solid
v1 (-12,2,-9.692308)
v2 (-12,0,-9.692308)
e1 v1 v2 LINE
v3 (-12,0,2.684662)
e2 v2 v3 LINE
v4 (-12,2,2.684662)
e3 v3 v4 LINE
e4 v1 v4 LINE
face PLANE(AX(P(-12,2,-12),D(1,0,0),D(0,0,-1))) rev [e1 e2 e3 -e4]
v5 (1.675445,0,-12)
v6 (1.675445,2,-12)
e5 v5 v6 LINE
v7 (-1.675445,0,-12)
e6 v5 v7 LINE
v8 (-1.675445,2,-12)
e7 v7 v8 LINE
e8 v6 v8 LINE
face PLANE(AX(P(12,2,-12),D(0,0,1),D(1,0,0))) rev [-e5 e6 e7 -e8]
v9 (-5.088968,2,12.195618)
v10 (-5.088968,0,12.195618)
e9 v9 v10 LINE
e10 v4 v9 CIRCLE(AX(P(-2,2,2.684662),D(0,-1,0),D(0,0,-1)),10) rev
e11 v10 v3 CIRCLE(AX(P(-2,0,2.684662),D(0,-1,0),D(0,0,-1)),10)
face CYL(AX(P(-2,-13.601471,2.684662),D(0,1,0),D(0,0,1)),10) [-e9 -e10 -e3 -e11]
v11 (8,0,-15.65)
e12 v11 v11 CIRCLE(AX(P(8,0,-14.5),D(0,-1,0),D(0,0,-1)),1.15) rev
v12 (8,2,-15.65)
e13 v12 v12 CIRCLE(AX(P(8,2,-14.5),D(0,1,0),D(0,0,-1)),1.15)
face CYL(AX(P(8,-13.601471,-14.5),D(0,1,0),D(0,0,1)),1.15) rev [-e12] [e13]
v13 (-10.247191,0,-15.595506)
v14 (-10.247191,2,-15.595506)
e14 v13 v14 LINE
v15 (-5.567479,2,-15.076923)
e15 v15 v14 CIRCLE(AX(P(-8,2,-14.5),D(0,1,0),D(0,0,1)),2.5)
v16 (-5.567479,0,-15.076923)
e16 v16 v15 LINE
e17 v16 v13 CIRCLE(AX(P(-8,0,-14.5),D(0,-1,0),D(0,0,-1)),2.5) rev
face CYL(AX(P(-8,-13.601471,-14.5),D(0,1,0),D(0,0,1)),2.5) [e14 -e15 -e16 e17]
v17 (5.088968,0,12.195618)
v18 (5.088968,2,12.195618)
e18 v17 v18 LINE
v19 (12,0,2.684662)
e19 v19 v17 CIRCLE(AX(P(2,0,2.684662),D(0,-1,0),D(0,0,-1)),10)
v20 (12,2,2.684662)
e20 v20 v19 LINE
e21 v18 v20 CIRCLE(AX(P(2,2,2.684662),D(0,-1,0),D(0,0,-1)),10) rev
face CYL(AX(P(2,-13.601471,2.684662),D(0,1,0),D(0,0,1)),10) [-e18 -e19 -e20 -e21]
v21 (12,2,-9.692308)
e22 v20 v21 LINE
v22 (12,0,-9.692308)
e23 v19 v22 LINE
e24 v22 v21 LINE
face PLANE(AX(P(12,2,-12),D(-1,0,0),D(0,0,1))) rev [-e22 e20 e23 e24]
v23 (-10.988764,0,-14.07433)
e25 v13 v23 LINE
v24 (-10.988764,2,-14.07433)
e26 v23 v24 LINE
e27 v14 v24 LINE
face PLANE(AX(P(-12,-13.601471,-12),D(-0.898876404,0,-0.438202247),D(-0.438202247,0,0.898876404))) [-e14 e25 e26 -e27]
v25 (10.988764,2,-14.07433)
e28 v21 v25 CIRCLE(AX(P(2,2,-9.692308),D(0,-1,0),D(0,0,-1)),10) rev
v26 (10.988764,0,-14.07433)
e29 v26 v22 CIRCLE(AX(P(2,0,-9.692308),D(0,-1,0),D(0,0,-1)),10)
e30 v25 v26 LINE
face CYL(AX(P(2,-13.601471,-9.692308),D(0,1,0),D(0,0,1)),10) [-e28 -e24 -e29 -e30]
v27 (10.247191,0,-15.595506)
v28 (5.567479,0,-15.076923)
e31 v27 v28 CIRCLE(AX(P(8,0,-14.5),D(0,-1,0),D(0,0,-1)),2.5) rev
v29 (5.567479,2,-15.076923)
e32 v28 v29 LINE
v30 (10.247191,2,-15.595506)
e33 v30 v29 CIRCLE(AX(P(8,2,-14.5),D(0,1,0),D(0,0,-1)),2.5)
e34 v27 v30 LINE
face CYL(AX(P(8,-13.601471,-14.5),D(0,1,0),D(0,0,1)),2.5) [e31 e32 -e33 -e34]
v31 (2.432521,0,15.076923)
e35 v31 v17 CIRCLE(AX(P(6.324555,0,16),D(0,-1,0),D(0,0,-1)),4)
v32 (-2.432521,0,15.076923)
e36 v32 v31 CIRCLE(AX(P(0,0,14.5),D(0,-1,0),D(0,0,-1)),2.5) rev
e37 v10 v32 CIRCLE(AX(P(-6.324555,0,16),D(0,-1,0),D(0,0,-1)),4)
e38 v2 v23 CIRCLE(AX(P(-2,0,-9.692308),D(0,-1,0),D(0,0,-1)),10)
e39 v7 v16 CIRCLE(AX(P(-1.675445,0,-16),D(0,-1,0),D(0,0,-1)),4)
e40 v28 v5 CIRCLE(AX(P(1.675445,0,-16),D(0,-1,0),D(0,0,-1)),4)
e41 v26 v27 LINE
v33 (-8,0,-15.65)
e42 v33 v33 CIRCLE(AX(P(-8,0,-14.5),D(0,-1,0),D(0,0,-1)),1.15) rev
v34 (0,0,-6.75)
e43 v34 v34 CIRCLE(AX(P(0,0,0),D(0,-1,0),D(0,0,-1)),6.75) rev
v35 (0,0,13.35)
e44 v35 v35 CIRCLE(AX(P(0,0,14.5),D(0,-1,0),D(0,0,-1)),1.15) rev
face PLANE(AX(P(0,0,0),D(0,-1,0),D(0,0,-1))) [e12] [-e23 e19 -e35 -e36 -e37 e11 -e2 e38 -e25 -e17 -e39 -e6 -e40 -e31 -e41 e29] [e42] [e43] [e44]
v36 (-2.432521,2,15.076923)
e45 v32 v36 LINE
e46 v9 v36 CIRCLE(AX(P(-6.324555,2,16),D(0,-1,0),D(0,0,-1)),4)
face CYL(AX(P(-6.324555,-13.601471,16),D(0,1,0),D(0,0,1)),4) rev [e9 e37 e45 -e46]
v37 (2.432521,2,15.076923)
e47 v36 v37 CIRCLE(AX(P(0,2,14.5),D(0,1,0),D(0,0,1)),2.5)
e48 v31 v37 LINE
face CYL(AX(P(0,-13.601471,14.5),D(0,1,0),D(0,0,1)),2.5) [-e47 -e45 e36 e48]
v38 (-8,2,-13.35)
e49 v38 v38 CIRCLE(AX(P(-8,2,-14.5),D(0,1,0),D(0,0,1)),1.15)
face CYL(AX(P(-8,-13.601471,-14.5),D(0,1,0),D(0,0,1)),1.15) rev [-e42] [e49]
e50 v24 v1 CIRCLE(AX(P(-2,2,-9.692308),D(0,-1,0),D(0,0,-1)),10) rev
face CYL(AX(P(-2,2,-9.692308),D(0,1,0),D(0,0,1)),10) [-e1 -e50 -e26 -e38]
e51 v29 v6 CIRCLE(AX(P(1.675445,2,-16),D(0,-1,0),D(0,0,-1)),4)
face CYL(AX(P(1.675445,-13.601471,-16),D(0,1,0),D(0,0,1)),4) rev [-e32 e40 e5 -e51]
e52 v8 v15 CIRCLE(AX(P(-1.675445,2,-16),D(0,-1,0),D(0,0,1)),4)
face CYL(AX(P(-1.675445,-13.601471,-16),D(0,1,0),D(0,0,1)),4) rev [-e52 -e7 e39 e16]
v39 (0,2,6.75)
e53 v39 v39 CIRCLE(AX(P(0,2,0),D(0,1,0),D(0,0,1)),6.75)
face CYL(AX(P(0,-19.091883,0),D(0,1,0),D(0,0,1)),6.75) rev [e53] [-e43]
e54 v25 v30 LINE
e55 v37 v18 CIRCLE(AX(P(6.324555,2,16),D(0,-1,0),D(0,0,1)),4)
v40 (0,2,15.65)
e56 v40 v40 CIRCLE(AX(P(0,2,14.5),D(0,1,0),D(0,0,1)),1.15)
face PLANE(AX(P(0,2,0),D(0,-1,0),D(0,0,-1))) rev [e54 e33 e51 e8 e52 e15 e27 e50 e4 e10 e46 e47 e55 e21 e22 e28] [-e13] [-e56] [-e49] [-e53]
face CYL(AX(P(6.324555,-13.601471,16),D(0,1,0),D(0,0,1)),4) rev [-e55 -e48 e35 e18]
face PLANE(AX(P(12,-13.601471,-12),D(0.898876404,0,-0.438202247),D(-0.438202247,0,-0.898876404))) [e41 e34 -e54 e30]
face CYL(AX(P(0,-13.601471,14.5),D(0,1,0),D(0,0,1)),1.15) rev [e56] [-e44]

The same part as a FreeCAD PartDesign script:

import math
import FreeCAD as App
import Part
import Sketcher
from FreeCAD import Vector


def edges_at(feature, points):
    """Names of the edges that pass closest to the given points."""
    edges = feature.Shape.Edges
    near = lambda p: min(range(len(edges)), key=lambda i: edges[i].distToShape(Part.Vertex(*p))[0])
    return sorted({f"Edge{near(p) + 1}" for p in points})


def add_polygon(sketch, points):
    """Adds a closed chain of lines whose ends are joined by coincident constraints."""
    first, n = sketch.GeometryCount, len(points)
    for a, b in zip(points, points[1:] + points[:1]):
        sketch.addGeometry(Part.LineSegment(App.Vector(*a, 0), App.Vector(*b, 0)), False)
    for i in range(n):
        sketch.addConstraint(Sketcher.Constraint("Coincident", first + i, 2, first + (i + 1) % n, 1))

doc = App.newDocument("Part")
params = doc.addObject("Spreadsheet::Sheet", "Params")
for row, (alias, value) in enumerate([
    ("sketch1_width", "24 mm"),
    ("pad1_length", "2 mm"),
    ("sketch2_radius", "4 mm"),
    ("sketch2_diameter", "2.3 mm"),
    ("sketch2_radius2", "2.5 mm"),
    ("sketch2_length", "4 mm"),
    ("pad2_length", "2 mm"),
    ("fillet_radius", "10 mm"),
    ("sketch3_diameter", "13.5 mm"),
    ("pocket1_length", "2 mm"),
    ("fillet2_radius", "10 mm"),
], start=1):
    params.set(f"A{row}", alias)
    params.set(f"B{row}", "=" + value)
    params.setAlias(f"B{row}", alias)

body = doc.addObject("PartDesign::Body", "Body")

sketch1 = body.newObject("Sketcher::SketchObject", "Sketch")
sketch1.AttachmentSupport = (doc.getObject("XZ_Plane"), [""])
sketch1.MapMode = "FlatFace"
add_polygon(sketch1, [(-12, -12), (-12, 12), (12, 12), (12, -12)])
sketch1.addConstraint(Sketcher.Constraint("Vertical", 0))
sketch1.addConstraint(Sketcher.Constraint("Horizontal", 1))
sketch1.addConstraint(Sketcher.Constraint("Vertical", 2))
sketch1.addConstraint(Sketcher.Constraint("Horizontal", 3))
sketch1.addConstraint(Sketcher.Constraint("Symmetric", 0, 2, 2, 2, -1, 1))
sketch1.addConstraint(Sketcher.Constraint("Equal", 3, 0))
sketch1.addConstraint(Sketcher.Constraint("DistanceX", 1, 1, 1, 2, 24.0))
sketch1.setExpression("Constraints[10]", "Params.sketch1_width")
pad1 = body.newObject("PartDesign::Pad", "Pad")
pad1.Profile = sketch1
pad1.setExpression("Length", "Params.pad1_length")
pad1.Reversed = True

sketch2 = body.newObject("Sketcher::SketchObject", "Sketch001")
sketch2.AttachmentSupport = (doc.getObject("XZ_Plane"), [""])
sketch2.MapMode = "FlatFace"
sketch2.AttachmentOffset = App.Placement(Vector(0, 0, -2), App.Rotation())
sketch2.addGeometry(Part.LineSegment(Vector(6.324555, 12, 0), Vector(-6.324555, 12, 0)), False)
sketch2.addGeometry(Part.ArcOfCircle(Part.Circle(Vector(-6.324555, 16, 0), Vector(0, 0, 1), 4), math.radians(-90), math.radians(-13.342364)), False)
sketch2.addGeometry(Part.ArcOfCircle(Part.Circle(Vector(0, 14.5, 0), Vector(0, 0, 1), 2.5), math.radians(13.342364), math.radians(166.657636)), False)
sketch2.addGeometry(Part.ArcOfCircle(Part.Circle(Vector(6.324555, 16, 0), Vector(0, 0, 1), 4), math.radians(-166.657636), math.radians(-90)), False)
sketch2.addGeometry(Part.Circle(Vector(0, 14.5, 0), Vector(0, 0, 1), 1.15), False)
sketch2.addGeometry(Part.LineSegment(Vector(-10.247191, -15.595506, 0), Vector(-12, -12, 0)), False)
sketch2.addGeometry(Part.LineSegment(Vector(-12, -12, 0), Vector(-1.675445, -12, 0)), False)
sketch2.addGeometry(Part.ArcOfCircle(Part.Circle(Vector(-1.675445, -16, 0), Vector(0, 0, 1), 4), math.radians(90), math.radians(166.657636)), False)
sketch2.addGeometry(Part.ArcOfCircle(Part.Circle(Vector(-8, -14.5, 0), Vector(0, 0, 1), 2.5), math.radians(-154.010766), math.radians(-13.342364)), False)
sketch2.addGeometry(Part.Circle(Vector(-8, -14.5, 0), Vector(0, 0, 1), 1.15), False)
sketch2.addGeometry(Part.LineSegment(Vector(1.675445, -12, 0), Vector(12, -12, 0)), False)
sketch2.addGeometry(Part.LineSegment(Vector(12, -12, 0), Vector(10.247191, -15.595506, 0)), False)
sketch2.addGeometry(Part.ArcOfCircle(Part.Circle(Vector(8, -14.5, 0), Vector(0, 0, 1), 2.5), math.radians(-166.657636), math.radians(-25.989234)), False)
sketch2.addGeometry(Part.ArcOfCircle(Part.Circle(Vector(1.675445, -16, 0), Vector(0, 0, 1), 4), math.radians(13.342364), math.radians(90)), False)
sketch2.addGeometry(Part.Circle(Vector(8, -14.5, 0), Vector(0, 0, 1), 1.15), False)
sketch2.addConstraint(Sketcher.Constraint("Tangent", 0, 2, 1, 1))
sketch2.addConstraint(Sketcher.Constraint("Tangent", 1, 2, 2, 2))
sketch2.addConstraint(Sketcher.Constraint("Tangent", 2, 1, 3, 1))
sketch2.addConstraint(Sketcher.Constraint("Tangent", 3, 2, 0, 1))
sketch2.addConstraint(Sketcher.Constraint("Coincident", 5, 2, 6, 1))
sketch2.addConstraint(Sketcher.Constraint("Tangent", 6, 2, 7, 1))
sketch2.addConstraint(Sketcher.Constraint("Tangent", 7, 2, 8, 2))
sketch2.addConstraint(Sketcher.Constraint("Tangent", 8, 1, 5, 1))
sketch2.addConstraint(Sketcher.Constraint("Coincident", 10, 2, 11, 1))
sketch2.addConstraint(Sketcher.Constraint("Tangent", 11, 2, 12, 2))
sketch2.addConstraint(Sketcher.Constraint("Tangent", 12, 1, 13, 1))
sketch2.addConstraint(Sketcher.Constraint("Tangent", 13, 2, 10, 1))
sketch2.addConstraint(Sketcher.Constraint("Horizontal", 0))
sketch2.addConstraint(Sketcher.Constraint("Horizontal", 6))
sketch2.addConstraint(Sketcher.Constraint("Horizontal", 10))
sketch2.addConstraint(Sketcher.Constraint("Coincident", 4, 3, 2, 3))
sketch2.addConstraint(Sketcher.Constraint("Coincident", 9, 3, 8, 3))
sketch2.addConstraint(Sketcher.Constraint("Coincident", 14, 3, 12, 3))
sketch2.addConstraint(Sketcher.Constraint("Equal", 1, 3))
sketch2.addConstraint(Sketcher.Constraint("Equal", 3, 7))
sketch2.addConstraint(Sketcher.Constraint("Equal", 2, 8))
sketch2.addConstraint(Sketcher.Constraint("Equal", 4, 9))
sketch2.addConstraint(Sketcher.Constraint("Equal", 8, 12))
sketch2.addConstraint(Sketcher.Constraint("Equal", 7, 13))
sketch2.addConstraint(Sketcher.Constraint("Equal", 9, 14))
sketch2.addConstraint(Sketcher.Constraint("Symmetric", 8, 3, 12, 3, -2))
sketch2.addConstraint(Sketcher.Constraint("Symmetric", 5, 2, 10, 2, -2))
sketch2.addConstraint(Sketcher.Constraint("PointOnObject", 2, 3, -2))
sketch2.addConstraint(Sketcher.Constraint("Radius", 1, 4.0))
sketch2.addConstraint(Sketcher.Constraint("Diameter", 4, 2.3))
sketch2.addConstraint(Sketcher.Constraint("Radius", 2, 2.5))
sketch2.addConstraint(Sketcher.Constraint("Distance", 5, 4.0))
sketch2.addConstraint(Sketcher.Constraint("DistanceY", -1, 1, 1, 3, 16.0))
sketch2.addConstraint(Sketcher.Constraint("DistanceY", 7, 3, -1, 1, 16.0))
sketch2.addConstraint(Sketcher.Constraint("DistanceX", 8, 3, -1, 1, 8.0))
sketch2.addConstraint(Sketcher.Constraint("DistanceX", 5, 2, -1, 1, 12.0))
sketch2.addConstraint(Sketcher.Constraint("DistanceX", 7, 3, 3, 3, 8.0))
sketch2.setExpression("Constraints[28]", "Params.sketch2_radius")
sketch2.setExpression("Constraints[29]", "Params.sketch2_diameter")
sketch2.setExpression("Constraints[30]", "Params.sketch2_radius2")
sketch2.setExpression("Constraints[31]", "Params.sketch2_length")
pad2 = body.newObject("PartDesign::Pad", "Pad001")
pad2.Profile = sketch2
pad2.setExpression("Length", "Params.pad2_length")
doc.recompute()

fillet = body.newObject("PartDesign::Fillet", "Fillet")
fillet.Base = (pad2, edges_at(pad2, [(12, 1, 12), (-12, 1, 12)]))
fillet.setExpression("Radius", "Params.fillet_radius")

sketch3 = body.newObject("Sketcher::SketchObject", "Sketch002")
sketch3.AttachmentSupport = (doc.getObject("XZ_Plane"), [""])
sketch3.MapMode = "FlatFace"
sketch3.AttachmentOffset = App.Placement(Vector(0, 0, -2), App.Rotation())
sketch3.addGeometry(Part.Circle(Vector(0, 0, 0), Vector(0, 0, 1), 6.75), False)
sketch3.addConstraint(Sketcher.Constraint("Coincident", 0, 3, -1, 1))
sketch3.addConstraint(Sketcher.Constraint("Diameter", 0, 13.5))
sketch3.setExpression("Constraints[1]", "Params.sketch3_diameter")
pocket1 = body.newObject("PartDesign::Pocket", "Pocket")
pocket1.Profile = sketch3
pocket1.setExpression("Length", "Params.pocket1_length")
pocket1.Reversed = True
doc.recompute()

fillet2 = body.newObject("PartDesign::Fillet", "Fillet001")
fillet2.Base = (pocket1, edges_at(pocket1, [(-12, 1, -12), (12, 1, -12)]))
fillet2.setExpression("Radius", "Params.fillet2_radius")

doc.recompute()
